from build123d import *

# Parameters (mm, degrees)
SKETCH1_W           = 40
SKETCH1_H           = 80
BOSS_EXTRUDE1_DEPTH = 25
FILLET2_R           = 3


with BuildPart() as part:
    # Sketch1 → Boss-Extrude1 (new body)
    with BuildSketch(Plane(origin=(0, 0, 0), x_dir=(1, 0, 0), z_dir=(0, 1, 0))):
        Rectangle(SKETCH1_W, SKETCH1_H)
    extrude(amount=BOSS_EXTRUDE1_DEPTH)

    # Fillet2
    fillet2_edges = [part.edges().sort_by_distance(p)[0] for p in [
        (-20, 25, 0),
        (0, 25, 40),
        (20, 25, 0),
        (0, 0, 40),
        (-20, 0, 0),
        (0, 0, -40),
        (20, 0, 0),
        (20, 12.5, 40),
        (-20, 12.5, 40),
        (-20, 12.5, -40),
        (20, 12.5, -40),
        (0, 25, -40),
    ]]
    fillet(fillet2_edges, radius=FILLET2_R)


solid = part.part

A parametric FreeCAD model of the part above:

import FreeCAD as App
import Part
import Sketcher
from FreeCAD import Vector
Q = App.Units.Quantity

doc = App.newDocument("Part")
params = doc.addObject("Spreadsheet::Sheet", "Params")
for row, (alias, value) in enumerate([
    ("sketch1_width", "40 mm"),
    ("sketch1_height", "80 mm"),
    ("pad1_length", "25 mm"),
    ("fillet_radius", "3 mm"),
], start=1):
    params.set(f"A{row}", alias)
    params.set(f"B{row}", "=" + value)
    params.setAlias(f"B{row}", alias)

body = doc.addObject("PartDesign::Body", "Body")

sketch1 = body.newObject("Sketcher::SketchObject", "Sketch")
sketch1.AttachmentSupport = (doc.getObject("XZ_Plane"), [""])
sketch1.MapMode = "FlatFace"
sketch1.addGeometry([
    Part.LineSegment(Vector(-20, -40, 0), Vector(-20, 40, 0)),
    Part.LineSegment(Vector(-20, 40, 0), Vector(20, 40, 0)),
    Part.LineSegment(Vector(20, 40, 0), Vector(20, -40, 0)),
    Part.LineSegment(Vector(20, -40, 0), Vector(-20, -40, 0)),
], False)
sketch1.addConstraint([
    Sketcher.Constraint("Coincident", 0, 2, 1, 1),
    Sketcher.Constraint("Coincident", 1, 2, 2, 1),
    Sketcher.Constraint("Coincident", 2, 2, 3, 1),
    Sketcher.Constraint("Coincident", 3, 2, 0, 1),
    Sketcher.Constraint("Vertical", 0),
    Sketcher.Constraint("Horizontal", 1),
    Sketcher.Constraint("Vertical", 2),
    Sketcher.Constraint("Horizontal", 3),
    Sketcher.Constraint("Symmetric", 0, 2, 2, 2, -1, 1),
    Sketcher.Constraint("DistanceX", 1, 1, 1, 2, Q("40 mm")),
    Sketcher.Constraint("DistanceY", 0, 1, 0, 2, Q("80 mm")),
])
sketch1.setExpression("Constraints[9]", "Params.sketch1_width")
sketch1.setExpression("Constraints[10]", "Params.sketch1_height")
pad1 = body.newObject("PartDesign::Pad", "Pad")
pad1.Profile = sketch1
pad1.setExpression("Length", "Params.pad1_length")
pad1.Reversed = True
doc.recompute()

fillet = body.newObject("PartDesign::Fillet", "Fillet")
fillet.Base = (pad1, ["Edge1"])
fillet.UseAllEdges = True
fillet.setExpression("Radius", "Params.fillet_radius")

doc.recompute()
